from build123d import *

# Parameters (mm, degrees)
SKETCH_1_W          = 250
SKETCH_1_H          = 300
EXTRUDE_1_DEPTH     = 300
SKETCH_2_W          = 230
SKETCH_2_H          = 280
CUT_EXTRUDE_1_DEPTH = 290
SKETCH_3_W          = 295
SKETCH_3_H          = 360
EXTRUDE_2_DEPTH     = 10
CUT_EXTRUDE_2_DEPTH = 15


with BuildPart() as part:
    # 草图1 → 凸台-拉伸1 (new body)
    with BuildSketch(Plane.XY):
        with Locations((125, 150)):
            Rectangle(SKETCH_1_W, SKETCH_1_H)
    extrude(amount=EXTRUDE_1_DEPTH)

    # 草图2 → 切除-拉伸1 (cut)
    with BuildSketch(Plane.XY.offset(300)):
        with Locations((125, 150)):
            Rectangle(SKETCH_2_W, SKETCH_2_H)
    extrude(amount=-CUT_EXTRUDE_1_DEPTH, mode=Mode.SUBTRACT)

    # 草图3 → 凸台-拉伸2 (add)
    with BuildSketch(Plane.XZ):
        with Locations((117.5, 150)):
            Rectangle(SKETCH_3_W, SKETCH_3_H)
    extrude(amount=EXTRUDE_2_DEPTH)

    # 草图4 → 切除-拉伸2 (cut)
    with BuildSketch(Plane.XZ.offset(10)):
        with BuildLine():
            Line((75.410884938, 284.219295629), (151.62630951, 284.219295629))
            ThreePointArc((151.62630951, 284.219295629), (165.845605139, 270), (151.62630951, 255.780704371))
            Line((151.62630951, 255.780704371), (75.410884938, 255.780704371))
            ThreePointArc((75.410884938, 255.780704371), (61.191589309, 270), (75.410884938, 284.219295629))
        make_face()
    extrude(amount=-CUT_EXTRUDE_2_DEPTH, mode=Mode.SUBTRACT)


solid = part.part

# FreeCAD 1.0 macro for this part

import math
import FreeCAD as App
import Part
import Sketcher
from FreeCAD import Vector
Q = App.Units.Quantity

doc = App.newDocument("Part")
body = doc.addObject("PartDesign::Body", "Body")

# Sketch on XY plane
sketch1 = body.newObject("Sketcher::SketchObject", "Sketch")
sketch1.AttachmentSupport = (doc.getObject("XY_Plane"), [""])
sketch1.MapMode = "FlatFace"
sketch1.addGeometry(Part.LineSegment(Vector(0, 300, 0), Vector(0, 0, 0)), False)
sketch1.addGeometry(Part.LineSegment(Vector(0, 0, 0), Vector(250, 0, 0)), False)
sketch1.addGeometry(Part.LineSegment(Vector(250, 0, 0), Vector(250, 300, 0)), False)
sketch1.addGeometry(Part.LineSegment(Vector(250, 300, 0), Vector(0, 300, 0)), False)
sketch1.addConstraint(Sketcher.Constraint("Coincident", 0, 2, 1, 1))
sketch1.addConstraint(Sketcher.Constraint("Coincident", 1, 2, 2, 1))
sketch1.addConstraint(Sketcher.Constraint("Coincident", 2, 2, 3, 1))
sketch1.addConstraint(Sketcher.Constraint("Coincident", 3, 2, 0, 1))
sketch1.addConstraint(Sketcher.Constraint("Vertical", 0))
sketch1.addConstraint(Sketcher.Constraint("Horizontal", 1))
sketch1.addConstraint(Sketcher.Constraint("Vertical", 2))
sketch1.addConstraint(Sketcher.Constraint("Horizontal", 3))
sketch1.addConstraint(Sketcher.Constraint("Coincident", 0, 2, -1, 1))
sketch1.addConstraint(Sketcher.Constraint("DistanceX", 1, 1, 1, 2, Q("250 mm")))
sketch1.addConstraint(Sketcher.Constraint("DistanceY", 0, 2, 0, 1, Q("300 mm")))
pad1 = body.newObject("PartDesign::Pad", "Pad")
pad1.Profile = sketch1
pad1.Length = 300

# Sketch on XY plane
sketch2 = body.newObject("Sketcher::SketchObject", "Sketch001")
sketch2.AttachmentSupport = (doc.getObject("XY_Plane"), [""])
sketch2.MapMode = "FlatFace"
sketch2.AttachmentOffset = App.Placement(Vector(0, 0, 300), App.Rotation())
sketch2.addGeometry(Part.LineSegment(Vector(10, 290, 0), Vector(10, 10, 0)), False)
sketch2.addGeometry(Part.LineSegment(Vector(10, 10, 0), Vector(240, 10, 0)), False)
sketch2.addGeometry(Part.LineSegment(Vector(240, 10, 0), Vector(240, 290, 0)), False)
sketch2.addGeometry(Part.LineSegment(Vector(240, 290, 0), Vector(10, 290, 0)), False)
sketch2.addConstraint(Sketcher.Constraint("Coincident", 0, 2, 1, 1))
sketch2.addConstraint(Sketcher.Constraint("Coincident", 1, 2, 2, 1))
sketch2.addConstraint(Sketcher.Constraint("Coincident", 2, 2, 3, 1))
sketch2.addConstraint(Sketcher.Constraint("Coincident", 3, 2, 0, 1))
sketch2.addConstraint(Sketcher.Constraint("Vertical", 0))
sketch2.addConstraint(Sketcher.Constraint("Horizontal", 1))
sketch2.addConstraint(Sketcher.Constraint("Vertical", 2))
sketch2.addConstraint(Sketcher.Constraint("Horizontal", 3))
sketch2.addConstraint(Sketcher.Constraint("DistanceX", 1, 1, 1, 2, Q("230 mm")))
sketch2.addConstraint(Sketcher.Constraint("DistanceY", 0, 2, 0, 1, Q("280 mm")))
sketch2.addConstraint(Sketcher.Constraint("DistanceX", -1, 1, 0, 2, Q("10 mm")))
sketch2.addConstraint(Sketcher.Constraint("DistanceY", -1, 1, 0, 2, Q("10 mm")))
pocket1 = body.newObject("PartDesign::Pocket", "Pocket")
pocket1.Profile = sketch2
pocket1.Length = 290

# Sketch on XZ plane
sketch3 = body.newObject("Sketcher::SketchObject", "Sketch002")
sketch3.AttachmentSupport = (doc.getObject("XZ_Plane"), [""])
sketch3.MapMode = "FlatFace"
sketch3.addGeometry(Part.LineSegment(Vector(-30, 330, 0), Vector(-30, -30, 0)), False)
sketch3.addGeometry(Part.LineSegment(Vector(-30, -30, 0), Vector(265, -30, 0)), False)
sketch3.addGeometry(Part.LineSegment(Vector(265, -30, 0), Vector(265, 330, 0)), False)
sketch3.addGeometry(Part.LineSegment(Vector(265, 330, 0), Vector(-30, 330, 0)), False)
sketch3.addConstraint(Sketcher.Constraint("Coincident", 0, 2, 1, 1))
sketch3.addConstraint(Sketcher.Constraint("Coincident", 1, 2, 2, 1))
sketch3.addConstraint(Sketcher.Constraint("Coincident", 2, 2, 3, 1))
sketch3.addConstraint(Sketcher.Constraint("Coincident", 3, 2, 0, 1))
sketch3.addConstraint(Sketcher.Constraint("Vertical", 0))
sketch3.addConstraint(Sketcher.Constraint("Horizontal", 1))
sketch3.addConstraint(Sketcher.Constraint("Vertical", 2))
sketch3.addConstraint(Sketcher.Constraint("Horizontal", 3))
sketch3.addConstraint(Sketcher.Constraint("DistanceX", 1, 1, 1, 2, Q("295 mm")))
sketch3.addConstraint(Sketcher.Constraint("DistanceY", 0, 2, 0, 1, Q("360 mm")))
sketch3.addConstraint(Sketcher.Constraint("DistanceX", 0, 2, -1, 1, Q("30 mm")))
sketch3.addConstraint(Sketcher.Constraint("DistanceY", 0, 2, -1, 1, Q("30 mm")))
pad2 = body.newObject("PartDesign::Pad", "Pad001")
pad2.Profile = sketch3
pad2.Length = 10

# Sketch on XZ plane
sketch4 = body.newObject("Sketcher::SketchObject", "Sketch003")
sketch4.AttachmentSupport = (doc.getObject("XZ_Plane"), [""])
sketch4.MapMode = "FlatFace"
sketch4.AttachmentOffset = App.Placement(Vector(0, 0, 10), App.Rotation())
sketch4.addGeometry(Part.LineSegment(Vector(152, 284, 0), Vector(75, 284, 0)), False)
sketch4.addGeometry(Part.ArcOfCircle(Part.Circle(Vector(75, 270, 0), Vector(0, 0, 1), 14), math.radians(90), math.radians(270)), False)
sketch4.addGeometry(Part.LineSegment(Vector(75, 256, 0), Vector(152, 256, 0)), False)
sketch4.addGeometry(Part.ArcOfCircle(Part.Circle(Vector(152, 270, 0), Vector(0, 0, 1), 14), math.radians(-90), math.radians(90)), False)
sketch4.addConstraint(Sketcher.Constraint("Tangent", 0, 2, 1, 1))
sketch4.addConstraint(Sketcher.Constraint("Tangent", 1, 2, 2, 1))
sketch4.addConstraint(Sketcher.Constraint("Tangent", 2, 2, 3, 1))
sketch4.addConstraint(Sketcher.Constraint("Tangent", 3, 2, 0, 1))
sketch4.addConstraint(Sketcher.Constraint("Horizontal", 0))
sketch4.addConstraint(Sketcher.Constraint("Horizontal", 2))
sketch4.addConstraint(Sketcher.Constraint("DistanceY", -1, 1, 1, 3, Q("270 mm")))
sketch4.addConstraint(Sketcher.Constraint("Radius", 1, Q("14.219296 mm")))
sketch4.addConstraint(Sketcher.Constraint("DistanceX", 0, 2, 0, 1, Q("76.215425 mm")))
sketch4.addConstraint(Sketcher.Constraint("DistanceX", -1, 1, 3, 3, Q("151.62631 mm")))
pocket2 = body.newObject("PartDesign::Pocket", "Pocket001")
pocket2.Profile = sketch4
pocket2.Length = 15

doc.recompute()
